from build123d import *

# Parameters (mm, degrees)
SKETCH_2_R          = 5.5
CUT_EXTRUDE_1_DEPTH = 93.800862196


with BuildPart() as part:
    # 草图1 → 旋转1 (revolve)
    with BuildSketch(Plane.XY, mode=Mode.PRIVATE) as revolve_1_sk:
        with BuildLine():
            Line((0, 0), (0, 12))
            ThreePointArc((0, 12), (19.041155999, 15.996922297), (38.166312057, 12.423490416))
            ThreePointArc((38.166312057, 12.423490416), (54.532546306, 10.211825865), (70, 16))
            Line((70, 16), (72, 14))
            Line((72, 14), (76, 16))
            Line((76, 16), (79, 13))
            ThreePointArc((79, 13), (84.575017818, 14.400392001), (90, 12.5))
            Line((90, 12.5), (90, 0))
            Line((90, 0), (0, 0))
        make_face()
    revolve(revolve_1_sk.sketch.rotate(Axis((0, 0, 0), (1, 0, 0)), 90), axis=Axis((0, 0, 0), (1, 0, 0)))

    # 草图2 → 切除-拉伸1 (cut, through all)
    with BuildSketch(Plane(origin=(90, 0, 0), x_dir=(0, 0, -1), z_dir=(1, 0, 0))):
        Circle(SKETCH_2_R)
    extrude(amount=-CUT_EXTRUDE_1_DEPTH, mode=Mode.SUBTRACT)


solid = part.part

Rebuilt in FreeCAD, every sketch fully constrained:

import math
import FreeCAD as App
import Part
import Sketcher

V = App.Vector
Q = App.Units.Quantity

doc = App.newDocument("Part")
params = doc.addObject("Spreadsheet::Sheet", "Params")
for row, (alias, value) in enumerate([
    ("sketch1_radius", "10 mm"),
    ("sketch1_radius2", "50 mm"),
    ("sketch1_width", "90 mm"),
    ("sketch1_height", "12 mm"),
    ("sketch1_height2", "12.5 mm"),
    ("revolution_angle", "360 deg"),
    ("sketch2_diameter", "11 mm"),
], start=1):
    params.set(f"A{row}", alias)
    params.set(f"B{row}", "=" + value)
    params.setAlias(f"B{row}", alias)

body = doc.addObject("PartDesign::Body", "Body")

sketch1 = body.newObject("Sketcher::SketchObject", "Sketch")
sketch1.AttachmentSupport = (doc.getObject("XY_Plane"), [""])
sketch1.MapMode = "FlatFace"
sketch1.addGeometry(Part.LineSegment(V(0, 12, 0), V(0, 0, 0)), False)
sketch1.addGeometry(Part.LineSegment(V(0, 0, 0), V(90, 0, 0)), False)
sketch1.addGeometry(Part.LineSegment(V(90, 0, 0), V(90, 12.5, 0)), False)
sketch1.addGeometry(Part.ArcOfCircle(Part.Circle(V(84.1, 4.4, 0), V(0, 0, 1), 10), math.radians(54), math.radians(121)), False)
sketch1.addGeometry(Part.LineSegment(V(79, 13, 0), V(76, 16, 0)), False)
sketch1.addGeometry(Part.LineSegment(V(76, 16, 0), V(72, 14, 0)), False)
sketch1.addGeometry(Part.LineSegment(V(72, 14, 0), V(70, 16, 0)), False)
sketch1.addGeometry(Part.ArcOfCircle(Part.Circle(V(50.7, 43.9, 0), V(0, 0, 1), 33.9), math.radians(-112), math.radians(-55)), False)
sketch1.addGeometry(Part.ArcOfCircle(Part.Circle(V(19.6, -34, 0), V(0, 0, 1), 50), math.radians(68), math.radians(113)), False)
sketch1.addConstraint(Sketcher.Constraint("Coincident", 0, 2, 1, 1))
sketch1.addConstraint(Sketcher.Constraint("Coincident", 1, 2, 2, 1))
sketch1.addConstraint(Sketcher.Constraint("Coincident", 2, 2, 3, 1))
sketch1.addConstraint(Sketcher.Constraint("Coincident", 3, 2, 4, 1))
sketch1.addConstraint(Sketcher.Constraint("Coincident", 4, 2, 5, 1))
sketch1.addConstraint(Sketcher.Constraint("Coincident", 5, 2, 6, 1))
sketch1.addConstraint(Sketcher.Constraint("Coincident", 6, 2, 7, 2))
sketch1.addConstraint(Sketcher.Constraint("Tangent", 7, 1, 8, 1))
sketch1.addConstraint(Sketcher.Constraint("Coincident", 8, 2, 0, 1))
sketch1.addConstraint(Sketcher.Constraint("Vertical", 0))
sketch1.addConstraint(Sketcher.Constraint("Horizontal", 1))
sketch1.addConstraint(Sketcher.Constraint("Vertical", 2))
sketch1.addConstraint(Sketcher.Constraint("Coincident", 0, 2, -1, 1))
sketch1.addConstraint(Sketcher.Constraint("Parallel", 4, 6))
sketch1.addConstraint(Sketcher.Constraint("Horizontal", 4, 2, 6, 2))
sketch1.addConstraint(Sketcher.Constraint("Radius", 3, Q("10 mm")))
sketch1.addConstraint(Sketcher.Constraint("Radius", 8, Q("50 mm")))
sketch1.addConstraint(Sketcher.Constraint("DistanceX", 1, 1, 1, 2, Q("90 mm")))
sketch1.addConstraint(Sketcher.Constraint("DistanceY", 0, 2, 0, 1, Q("12 mm")))
sketch1.addConstraint(Sketcher.Constraint("Angle", 4, Q("135 deg")))
sketch1.addConstraint(Sketcher.Constraint("DistanceY", 2, 1, 2, 2, Q("12.5 mm")))
sketch1.addConstraint(Sketcher.Constraint("DistanceY", 8, 3, -1, 1, Q("34 mm")))
sketch1.addConstraint(Sketcher.Constraint("DistanceX", -1, 1, 3, 2, Q("79 mm")))
sketch1.addConstraint(Sketcher.Constraint("DistanceY", -1, 1, 3, 2, Q("13 mm")))
sketch1.addConstraint(Sketcher.Constraint("DistanceX", -1, 1, 4, 2, Q("76 mm")))
sketch1.addConstraint(Sketcher.Constraint("DistanceX", -1, 1, 5, 2, Q("72 mm")))
sketch1.addConstraint(Sketcher.Constraint("DistanceY", -1, 1, 5, 2, Q("14 mm")))
sketch1.addConstraint(Sketcher.Constraint("Radius", 7, Q("33.880664 mm")))
sketch1.setExpression("Constraints[15]", "Params.sketch1_radius")
sketch1.setExpression("Constraints[16]", "Params.sketch1_radius2")
sketch1.setExpression("Constraints[17]", "Params.sketch1_width")
sketch1.setExpression("Constraints[18]", "Params.sketch1_height")
sketch1.setExpression("Constraints[20]", "Params.sketch1_height2")
revolution = body.newObject("PartDesign::Revolution", "Revolution")
revolution.Profile = sketch1
revolution.ReferenceAxis = (sketch1, ["H_Axis"])
revolution.setExpression("Angle", "Params.revolution_angle")

sketch2 = body.newObject("Sketcher::SketchObject", "Sketch001")
sketch2.AttachmentSupport = (doc.getObject("YZ_Plane"), [""])
sketch2.MapMode = "FlatFace"
sketch2.AttachmentOffset = App.Placement(V(0, 0, 90), App.Rotation())
sketch2.addGeometry(Part.Circle(V(0, 0, 0), V(0, 0, 1), 6), False)
sketch2.addConstraint(Sketcher.Constraint("Coincident", 0, 3, -1, 1))
sketch2.addConstraint(Sketcher.Constraint("Diameter", 0, Q("11 mm")))
sketch2.setExpression("Constraints[1]", "Params.sketch2_diameter")
pocket1 = body.newObject("PartDesign::Pocket", "Pocket")
pocket1.Profile = sketch2
pocket1.Type = "ThroughAll"

doc.recompute()
